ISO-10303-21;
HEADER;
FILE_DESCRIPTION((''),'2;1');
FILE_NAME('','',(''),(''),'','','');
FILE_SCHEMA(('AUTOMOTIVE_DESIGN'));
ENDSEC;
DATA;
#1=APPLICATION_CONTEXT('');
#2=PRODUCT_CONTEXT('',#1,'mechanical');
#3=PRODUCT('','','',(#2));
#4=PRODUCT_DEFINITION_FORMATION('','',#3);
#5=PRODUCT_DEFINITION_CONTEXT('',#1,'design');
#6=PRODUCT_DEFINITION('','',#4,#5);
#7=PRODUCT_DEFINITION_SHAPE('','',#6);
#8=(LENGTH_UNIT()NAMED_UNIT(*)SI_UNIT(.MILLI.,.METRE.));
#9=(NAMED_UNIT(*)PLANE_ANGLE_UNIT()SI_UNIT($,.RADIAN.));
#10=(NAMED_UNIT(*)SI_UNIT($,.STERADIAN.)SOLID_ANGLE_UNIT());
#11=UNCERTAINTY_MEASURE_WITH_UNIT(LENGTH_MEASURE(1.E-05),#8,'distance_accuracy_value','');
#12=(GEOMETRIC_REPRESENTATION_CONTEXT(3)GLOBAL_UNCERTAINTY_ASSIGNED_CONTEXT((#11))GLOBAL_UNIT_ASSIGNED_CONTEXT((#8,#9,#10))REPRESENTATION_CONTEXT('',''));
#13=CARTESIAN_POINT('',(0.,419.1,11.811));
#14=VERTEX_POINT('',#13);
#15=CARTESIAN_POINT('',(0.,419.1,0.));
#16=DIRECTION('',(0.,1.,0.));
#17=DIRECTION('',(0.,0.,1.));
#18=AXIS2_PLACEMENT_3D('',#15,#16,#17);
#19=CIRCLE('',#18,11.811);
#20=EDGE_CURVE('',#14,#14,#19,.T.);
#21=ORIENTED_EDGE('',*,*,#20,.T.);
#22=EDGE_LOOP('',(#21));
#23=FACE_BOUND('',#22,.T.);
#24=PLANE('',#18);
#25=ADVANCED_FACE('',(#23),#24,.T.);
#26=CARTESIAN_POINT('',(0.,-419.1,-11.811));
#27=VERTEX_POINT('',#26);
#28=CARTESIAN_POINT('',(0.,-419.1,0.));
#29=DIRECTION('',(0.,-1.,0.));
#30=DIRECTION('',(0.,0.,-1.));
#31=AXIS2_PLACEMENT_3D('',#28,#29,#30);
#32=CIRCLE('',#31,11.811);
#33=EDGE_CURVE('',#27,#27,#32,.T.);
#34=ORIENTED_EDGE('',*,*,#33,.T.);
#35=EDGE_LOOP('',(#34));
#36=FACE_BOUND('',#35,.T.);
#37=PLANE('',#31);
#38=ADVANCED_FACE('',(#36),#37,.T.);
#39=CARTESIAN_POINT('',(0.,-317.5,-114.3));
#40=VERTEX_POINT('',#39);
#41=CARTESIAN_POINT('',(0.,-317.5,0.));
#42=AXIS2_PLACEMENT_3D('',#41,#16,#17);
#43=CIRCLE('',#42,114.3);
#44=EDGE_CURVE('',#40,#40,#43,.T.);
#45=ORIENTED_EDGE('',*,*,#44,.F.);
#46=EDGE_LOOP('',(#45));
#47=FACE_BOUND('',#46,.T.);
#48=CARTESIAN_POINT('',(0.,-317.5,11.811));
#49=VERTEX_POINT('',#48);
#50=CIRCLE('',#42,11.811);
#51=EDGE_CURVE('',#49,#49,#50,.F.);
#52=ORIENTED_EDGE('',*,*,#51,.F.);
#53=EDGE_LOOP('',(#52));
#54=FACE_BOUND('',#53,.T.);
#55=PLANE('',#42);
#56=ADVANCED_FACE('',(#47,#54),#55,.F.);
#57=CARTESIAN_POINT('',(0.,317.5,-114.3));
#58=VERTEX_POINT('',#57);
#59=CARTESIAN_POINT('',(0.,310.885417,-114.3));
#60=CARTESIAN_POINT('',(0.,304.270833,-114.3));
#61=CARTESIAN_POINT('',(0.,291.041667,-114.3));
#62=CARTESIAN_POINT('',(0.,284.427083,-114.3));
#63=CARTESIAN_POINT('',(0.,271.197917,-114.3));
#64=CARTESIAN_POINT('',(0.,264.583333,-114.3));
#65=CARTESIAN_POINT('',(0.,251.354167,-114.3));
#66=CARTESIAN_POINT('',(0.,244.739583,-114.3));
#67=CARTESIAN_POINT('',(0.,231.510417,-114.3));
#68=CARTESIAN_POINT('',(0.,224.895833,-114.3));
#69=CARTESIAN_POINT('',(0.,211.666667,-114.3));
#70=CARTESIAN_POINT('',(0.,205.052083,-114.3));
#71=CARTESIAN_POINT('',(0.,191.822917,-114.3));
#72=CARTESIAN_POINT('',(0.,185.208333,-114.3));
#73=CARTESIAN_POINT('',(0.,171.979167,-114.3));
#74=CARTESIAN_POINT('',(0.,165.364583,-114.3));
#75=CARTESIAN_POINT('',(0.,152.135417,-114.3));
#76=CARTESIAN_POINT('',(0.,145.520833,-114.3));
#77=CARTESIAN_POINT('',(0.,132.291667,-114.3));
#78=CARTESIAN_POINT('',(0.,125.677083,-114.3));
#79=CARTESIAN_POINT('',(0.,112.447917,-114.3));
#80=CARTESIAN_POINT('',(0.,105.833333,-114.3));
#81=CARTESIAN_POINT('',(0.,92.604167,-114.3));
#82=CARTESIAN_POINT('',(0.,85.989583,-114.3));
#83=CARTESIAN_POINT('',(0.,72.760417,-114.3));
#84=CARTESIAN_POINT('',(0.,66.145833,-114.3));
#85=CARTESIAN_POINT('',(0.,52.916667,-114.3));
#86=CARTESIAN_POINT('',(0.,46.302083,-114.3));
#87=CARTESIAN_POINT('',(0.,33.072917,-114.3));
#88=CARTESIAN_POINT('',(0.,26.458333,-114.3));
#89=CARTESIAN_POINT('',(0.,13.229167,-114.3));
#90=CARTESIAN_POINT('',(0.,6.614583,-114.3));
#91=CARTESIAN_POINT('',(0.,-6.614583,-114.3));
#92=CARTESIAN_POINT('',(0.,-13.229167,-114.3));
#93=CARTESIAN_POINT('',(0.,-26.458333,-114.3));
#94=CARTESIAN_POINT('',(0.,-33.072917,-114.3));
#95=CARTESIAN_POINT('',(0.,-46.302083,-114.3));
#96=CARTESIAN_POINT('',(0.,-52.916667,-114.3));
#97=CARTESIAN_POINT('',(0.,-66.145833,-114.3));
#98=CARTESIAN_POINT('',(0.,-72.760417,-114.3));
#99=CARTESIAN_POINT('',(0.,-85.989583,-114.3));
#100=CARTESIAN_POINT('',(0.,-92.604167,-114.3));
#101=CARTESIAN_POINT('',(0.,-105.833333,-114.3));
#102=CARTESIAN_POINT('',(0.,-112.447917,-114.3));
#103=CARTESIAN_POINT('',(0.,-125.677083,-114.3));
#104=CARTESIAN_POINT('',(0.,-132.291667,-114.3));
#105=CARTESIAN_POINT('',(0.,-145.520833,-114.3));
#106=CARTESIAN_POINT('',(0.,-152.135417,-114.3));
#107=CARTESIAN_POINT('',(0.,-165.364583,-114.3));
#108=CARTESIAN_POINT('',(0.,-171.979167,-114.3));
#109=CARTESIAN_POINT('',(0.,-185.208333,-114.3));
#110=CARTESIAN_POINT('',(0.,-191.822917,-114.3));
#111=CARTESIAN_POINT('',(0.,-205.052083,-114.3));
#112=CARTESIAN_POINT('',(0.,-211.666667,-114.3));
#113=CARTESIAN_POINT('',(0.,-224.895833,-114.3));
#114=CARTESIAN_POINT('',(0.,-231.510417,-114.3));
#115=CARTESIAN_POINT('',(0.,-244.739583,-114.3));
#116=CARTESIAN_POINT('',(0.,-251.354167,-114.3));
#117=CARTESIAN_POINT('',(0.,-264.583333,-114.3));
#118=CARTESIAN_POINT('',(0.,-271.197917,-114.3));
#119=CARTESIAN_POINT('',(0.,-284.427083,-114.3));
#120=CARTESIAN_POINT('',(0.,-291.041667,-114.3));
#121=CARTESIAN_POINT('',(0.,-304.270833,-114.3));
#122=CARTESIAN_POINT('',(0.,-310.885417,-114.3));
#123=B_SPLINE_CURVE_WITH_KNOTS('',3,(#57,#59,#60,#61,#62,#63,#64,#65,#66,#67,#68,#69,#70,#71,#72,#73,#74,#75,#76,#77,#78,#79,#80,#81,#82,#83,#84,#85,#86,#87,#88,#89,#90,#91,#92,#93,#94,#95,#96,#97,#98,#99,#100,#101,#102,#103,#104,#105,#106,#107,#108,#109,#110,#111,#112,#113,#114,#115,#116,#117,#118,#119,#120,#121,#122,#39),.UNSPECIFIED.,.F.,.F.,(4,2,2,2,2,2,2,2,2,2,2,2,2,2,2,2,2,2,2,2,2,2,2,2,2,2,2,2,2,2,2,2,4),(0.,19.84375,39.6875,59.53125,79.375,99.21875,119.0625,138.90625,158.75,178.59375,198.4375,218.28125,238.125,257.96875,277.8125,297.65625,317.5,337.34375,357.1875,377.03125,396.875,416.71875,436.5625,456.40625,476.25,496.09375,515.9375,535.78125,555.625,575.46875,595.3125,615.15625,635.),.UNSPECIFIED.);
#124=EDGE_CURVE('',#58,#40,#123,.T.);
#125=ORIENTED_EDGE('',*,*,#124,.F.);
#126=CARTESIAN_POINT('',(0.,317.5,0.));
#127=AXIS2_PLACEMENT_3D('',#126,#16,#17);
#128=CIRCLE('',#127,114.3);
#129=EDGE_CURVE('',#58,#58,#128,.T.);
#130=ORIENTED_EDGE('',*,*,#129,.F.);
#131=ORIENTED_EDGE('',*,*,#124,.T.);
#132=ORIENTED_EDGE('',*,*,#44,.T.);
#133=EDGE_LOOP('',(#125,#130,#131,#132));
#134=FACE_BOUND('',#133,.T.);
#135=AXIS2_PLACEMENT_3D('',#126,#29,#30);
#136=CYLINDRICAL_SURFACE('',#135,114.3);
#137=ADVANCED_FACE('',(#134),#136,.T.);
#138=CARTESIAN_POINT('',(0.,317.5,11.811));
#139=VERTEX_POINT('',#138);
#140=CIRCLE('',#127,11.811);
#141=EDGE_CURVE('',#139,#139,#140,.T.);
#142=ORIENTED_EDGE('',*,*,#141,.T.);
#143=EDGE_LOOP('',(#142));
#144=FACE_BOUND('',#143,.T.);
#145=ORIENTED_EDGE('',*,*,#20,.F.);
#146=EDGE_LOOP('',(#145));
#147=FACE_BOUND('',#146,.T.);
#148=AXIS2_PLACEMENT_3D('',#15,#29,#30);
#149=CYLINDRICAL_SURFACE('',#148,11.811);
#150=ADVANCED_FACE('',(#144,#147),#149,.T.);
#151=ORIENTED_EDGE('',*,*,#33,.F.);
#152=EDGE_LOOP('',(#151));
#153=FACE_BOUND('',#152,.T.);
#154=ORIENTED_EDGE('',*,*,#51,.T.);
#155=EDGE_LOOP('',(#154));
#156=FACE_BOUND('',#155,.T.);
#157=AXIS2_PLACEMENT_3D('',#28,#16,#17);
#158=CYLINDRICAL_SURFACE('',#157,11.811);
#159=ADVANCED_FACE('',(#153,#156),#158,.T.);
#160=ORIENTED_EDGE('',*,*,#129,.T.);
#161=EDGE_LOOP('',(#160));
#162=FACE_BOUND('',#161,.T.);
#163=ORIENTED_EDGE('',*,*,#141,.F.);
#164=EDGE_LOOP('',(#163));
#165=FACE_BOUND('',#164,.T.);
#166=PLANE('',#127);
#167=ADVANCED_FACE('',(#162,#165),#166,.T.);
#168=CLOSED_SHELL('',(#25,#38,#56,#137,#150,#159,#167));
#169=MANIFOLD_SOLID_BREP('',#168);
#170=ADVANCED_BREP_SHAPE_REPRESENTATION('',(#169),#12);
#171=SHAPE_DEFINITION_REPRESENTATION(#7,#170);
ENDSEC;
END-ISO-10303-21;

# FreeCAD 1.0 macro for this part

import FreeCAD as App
import Part
import Sketcher
from FreeCAD import Vector
Q = App.Units.Quantity

doc = App.newDocument("Part")
body = doc.addObject("PartDesign::Body", "Body")

# Sketch on XZ plane
sketch1 = body.newObject("Sketcher::SketchObject", "Sketch")
sketch1.AttachmentSupport = (doc.getObject("XZ_Plane"), [""])
sketch1.MapMode = "FlatFace"
sketch1.addGeometry(Part.Circle(Vector(0, 0, 0), Vector(0, 0, 1), 114.3), False)
sketch1.addConstraint([
    Sketcher.Constraint("Coincident", 0, 3, -1, 1),
    Sketcher.Constraint("Diameter", 0, Q("9 in")),
])
pad1 = body.newObject("PartDesign::Pad", "Pad")
pad1.Profile = sketch1
pad1.Length = Q("25 in")
pad1.Midplane = True

# Sketch on XZ plane
sketch2 = body.newObject("Sketcher::SketchObject", "Sketch001")
sketch2.AttachmentSupport = (doc.getObject("XZ_Plane"), [""])
sketch2.MapMode = "FlatFace"
sketch2.AttachmentOffset = App.Placement(Vector(0, 0, -12.5 * 25.4), App.Rotation())
sketch2.addGeometry(Part.Circle(Vector(0, 0, 0), Vector(0, 0, 1), 11.811), False)
sketch2.addConstraint([
    Sketcher.Constraint("Coincident", 0, 3, -1, 1),
    Sketcher.Constraint("Diameter", 0, Q("0.93 in")),
])
pad2 = body.newObject("PartDesign::Pad", "Pad001")
pad2.Profile = sketch2
pad2.Length = Q("4 in")
pad2.Reversed = True

# Sketch on XZ plane
sketch3 = body.newObject("Sketcher::SketchObject", "Sketch002")
sketch3.AttachmentSupport = (doc.getObject("XZ_Plane"), [""])
sketch3.MapMode = "FlatFace"
sketch3.AttachmentOffset = App.Placement(Vector(0, 0, 16.5 * 25.4), App.Rotation())
sketch3.addGeometry(Part.Circle(Vector(0, 0, 0), Vector(0, 0, 1), 11.811), False)
sketch3.addConstraint([
    Sketcher.Constraint("Coincident", 0, 3, -1, 1),
    Sketcher.Constraint("Diameter", 0, Q("0.93 in")),
])
pad3 = body.newObject("PartDesign::Pad", "Pad002")
pad3.Profile = sketch3
pad3.Length = Q("4 in")
pad3.Reversed = True

doc.recompute()
